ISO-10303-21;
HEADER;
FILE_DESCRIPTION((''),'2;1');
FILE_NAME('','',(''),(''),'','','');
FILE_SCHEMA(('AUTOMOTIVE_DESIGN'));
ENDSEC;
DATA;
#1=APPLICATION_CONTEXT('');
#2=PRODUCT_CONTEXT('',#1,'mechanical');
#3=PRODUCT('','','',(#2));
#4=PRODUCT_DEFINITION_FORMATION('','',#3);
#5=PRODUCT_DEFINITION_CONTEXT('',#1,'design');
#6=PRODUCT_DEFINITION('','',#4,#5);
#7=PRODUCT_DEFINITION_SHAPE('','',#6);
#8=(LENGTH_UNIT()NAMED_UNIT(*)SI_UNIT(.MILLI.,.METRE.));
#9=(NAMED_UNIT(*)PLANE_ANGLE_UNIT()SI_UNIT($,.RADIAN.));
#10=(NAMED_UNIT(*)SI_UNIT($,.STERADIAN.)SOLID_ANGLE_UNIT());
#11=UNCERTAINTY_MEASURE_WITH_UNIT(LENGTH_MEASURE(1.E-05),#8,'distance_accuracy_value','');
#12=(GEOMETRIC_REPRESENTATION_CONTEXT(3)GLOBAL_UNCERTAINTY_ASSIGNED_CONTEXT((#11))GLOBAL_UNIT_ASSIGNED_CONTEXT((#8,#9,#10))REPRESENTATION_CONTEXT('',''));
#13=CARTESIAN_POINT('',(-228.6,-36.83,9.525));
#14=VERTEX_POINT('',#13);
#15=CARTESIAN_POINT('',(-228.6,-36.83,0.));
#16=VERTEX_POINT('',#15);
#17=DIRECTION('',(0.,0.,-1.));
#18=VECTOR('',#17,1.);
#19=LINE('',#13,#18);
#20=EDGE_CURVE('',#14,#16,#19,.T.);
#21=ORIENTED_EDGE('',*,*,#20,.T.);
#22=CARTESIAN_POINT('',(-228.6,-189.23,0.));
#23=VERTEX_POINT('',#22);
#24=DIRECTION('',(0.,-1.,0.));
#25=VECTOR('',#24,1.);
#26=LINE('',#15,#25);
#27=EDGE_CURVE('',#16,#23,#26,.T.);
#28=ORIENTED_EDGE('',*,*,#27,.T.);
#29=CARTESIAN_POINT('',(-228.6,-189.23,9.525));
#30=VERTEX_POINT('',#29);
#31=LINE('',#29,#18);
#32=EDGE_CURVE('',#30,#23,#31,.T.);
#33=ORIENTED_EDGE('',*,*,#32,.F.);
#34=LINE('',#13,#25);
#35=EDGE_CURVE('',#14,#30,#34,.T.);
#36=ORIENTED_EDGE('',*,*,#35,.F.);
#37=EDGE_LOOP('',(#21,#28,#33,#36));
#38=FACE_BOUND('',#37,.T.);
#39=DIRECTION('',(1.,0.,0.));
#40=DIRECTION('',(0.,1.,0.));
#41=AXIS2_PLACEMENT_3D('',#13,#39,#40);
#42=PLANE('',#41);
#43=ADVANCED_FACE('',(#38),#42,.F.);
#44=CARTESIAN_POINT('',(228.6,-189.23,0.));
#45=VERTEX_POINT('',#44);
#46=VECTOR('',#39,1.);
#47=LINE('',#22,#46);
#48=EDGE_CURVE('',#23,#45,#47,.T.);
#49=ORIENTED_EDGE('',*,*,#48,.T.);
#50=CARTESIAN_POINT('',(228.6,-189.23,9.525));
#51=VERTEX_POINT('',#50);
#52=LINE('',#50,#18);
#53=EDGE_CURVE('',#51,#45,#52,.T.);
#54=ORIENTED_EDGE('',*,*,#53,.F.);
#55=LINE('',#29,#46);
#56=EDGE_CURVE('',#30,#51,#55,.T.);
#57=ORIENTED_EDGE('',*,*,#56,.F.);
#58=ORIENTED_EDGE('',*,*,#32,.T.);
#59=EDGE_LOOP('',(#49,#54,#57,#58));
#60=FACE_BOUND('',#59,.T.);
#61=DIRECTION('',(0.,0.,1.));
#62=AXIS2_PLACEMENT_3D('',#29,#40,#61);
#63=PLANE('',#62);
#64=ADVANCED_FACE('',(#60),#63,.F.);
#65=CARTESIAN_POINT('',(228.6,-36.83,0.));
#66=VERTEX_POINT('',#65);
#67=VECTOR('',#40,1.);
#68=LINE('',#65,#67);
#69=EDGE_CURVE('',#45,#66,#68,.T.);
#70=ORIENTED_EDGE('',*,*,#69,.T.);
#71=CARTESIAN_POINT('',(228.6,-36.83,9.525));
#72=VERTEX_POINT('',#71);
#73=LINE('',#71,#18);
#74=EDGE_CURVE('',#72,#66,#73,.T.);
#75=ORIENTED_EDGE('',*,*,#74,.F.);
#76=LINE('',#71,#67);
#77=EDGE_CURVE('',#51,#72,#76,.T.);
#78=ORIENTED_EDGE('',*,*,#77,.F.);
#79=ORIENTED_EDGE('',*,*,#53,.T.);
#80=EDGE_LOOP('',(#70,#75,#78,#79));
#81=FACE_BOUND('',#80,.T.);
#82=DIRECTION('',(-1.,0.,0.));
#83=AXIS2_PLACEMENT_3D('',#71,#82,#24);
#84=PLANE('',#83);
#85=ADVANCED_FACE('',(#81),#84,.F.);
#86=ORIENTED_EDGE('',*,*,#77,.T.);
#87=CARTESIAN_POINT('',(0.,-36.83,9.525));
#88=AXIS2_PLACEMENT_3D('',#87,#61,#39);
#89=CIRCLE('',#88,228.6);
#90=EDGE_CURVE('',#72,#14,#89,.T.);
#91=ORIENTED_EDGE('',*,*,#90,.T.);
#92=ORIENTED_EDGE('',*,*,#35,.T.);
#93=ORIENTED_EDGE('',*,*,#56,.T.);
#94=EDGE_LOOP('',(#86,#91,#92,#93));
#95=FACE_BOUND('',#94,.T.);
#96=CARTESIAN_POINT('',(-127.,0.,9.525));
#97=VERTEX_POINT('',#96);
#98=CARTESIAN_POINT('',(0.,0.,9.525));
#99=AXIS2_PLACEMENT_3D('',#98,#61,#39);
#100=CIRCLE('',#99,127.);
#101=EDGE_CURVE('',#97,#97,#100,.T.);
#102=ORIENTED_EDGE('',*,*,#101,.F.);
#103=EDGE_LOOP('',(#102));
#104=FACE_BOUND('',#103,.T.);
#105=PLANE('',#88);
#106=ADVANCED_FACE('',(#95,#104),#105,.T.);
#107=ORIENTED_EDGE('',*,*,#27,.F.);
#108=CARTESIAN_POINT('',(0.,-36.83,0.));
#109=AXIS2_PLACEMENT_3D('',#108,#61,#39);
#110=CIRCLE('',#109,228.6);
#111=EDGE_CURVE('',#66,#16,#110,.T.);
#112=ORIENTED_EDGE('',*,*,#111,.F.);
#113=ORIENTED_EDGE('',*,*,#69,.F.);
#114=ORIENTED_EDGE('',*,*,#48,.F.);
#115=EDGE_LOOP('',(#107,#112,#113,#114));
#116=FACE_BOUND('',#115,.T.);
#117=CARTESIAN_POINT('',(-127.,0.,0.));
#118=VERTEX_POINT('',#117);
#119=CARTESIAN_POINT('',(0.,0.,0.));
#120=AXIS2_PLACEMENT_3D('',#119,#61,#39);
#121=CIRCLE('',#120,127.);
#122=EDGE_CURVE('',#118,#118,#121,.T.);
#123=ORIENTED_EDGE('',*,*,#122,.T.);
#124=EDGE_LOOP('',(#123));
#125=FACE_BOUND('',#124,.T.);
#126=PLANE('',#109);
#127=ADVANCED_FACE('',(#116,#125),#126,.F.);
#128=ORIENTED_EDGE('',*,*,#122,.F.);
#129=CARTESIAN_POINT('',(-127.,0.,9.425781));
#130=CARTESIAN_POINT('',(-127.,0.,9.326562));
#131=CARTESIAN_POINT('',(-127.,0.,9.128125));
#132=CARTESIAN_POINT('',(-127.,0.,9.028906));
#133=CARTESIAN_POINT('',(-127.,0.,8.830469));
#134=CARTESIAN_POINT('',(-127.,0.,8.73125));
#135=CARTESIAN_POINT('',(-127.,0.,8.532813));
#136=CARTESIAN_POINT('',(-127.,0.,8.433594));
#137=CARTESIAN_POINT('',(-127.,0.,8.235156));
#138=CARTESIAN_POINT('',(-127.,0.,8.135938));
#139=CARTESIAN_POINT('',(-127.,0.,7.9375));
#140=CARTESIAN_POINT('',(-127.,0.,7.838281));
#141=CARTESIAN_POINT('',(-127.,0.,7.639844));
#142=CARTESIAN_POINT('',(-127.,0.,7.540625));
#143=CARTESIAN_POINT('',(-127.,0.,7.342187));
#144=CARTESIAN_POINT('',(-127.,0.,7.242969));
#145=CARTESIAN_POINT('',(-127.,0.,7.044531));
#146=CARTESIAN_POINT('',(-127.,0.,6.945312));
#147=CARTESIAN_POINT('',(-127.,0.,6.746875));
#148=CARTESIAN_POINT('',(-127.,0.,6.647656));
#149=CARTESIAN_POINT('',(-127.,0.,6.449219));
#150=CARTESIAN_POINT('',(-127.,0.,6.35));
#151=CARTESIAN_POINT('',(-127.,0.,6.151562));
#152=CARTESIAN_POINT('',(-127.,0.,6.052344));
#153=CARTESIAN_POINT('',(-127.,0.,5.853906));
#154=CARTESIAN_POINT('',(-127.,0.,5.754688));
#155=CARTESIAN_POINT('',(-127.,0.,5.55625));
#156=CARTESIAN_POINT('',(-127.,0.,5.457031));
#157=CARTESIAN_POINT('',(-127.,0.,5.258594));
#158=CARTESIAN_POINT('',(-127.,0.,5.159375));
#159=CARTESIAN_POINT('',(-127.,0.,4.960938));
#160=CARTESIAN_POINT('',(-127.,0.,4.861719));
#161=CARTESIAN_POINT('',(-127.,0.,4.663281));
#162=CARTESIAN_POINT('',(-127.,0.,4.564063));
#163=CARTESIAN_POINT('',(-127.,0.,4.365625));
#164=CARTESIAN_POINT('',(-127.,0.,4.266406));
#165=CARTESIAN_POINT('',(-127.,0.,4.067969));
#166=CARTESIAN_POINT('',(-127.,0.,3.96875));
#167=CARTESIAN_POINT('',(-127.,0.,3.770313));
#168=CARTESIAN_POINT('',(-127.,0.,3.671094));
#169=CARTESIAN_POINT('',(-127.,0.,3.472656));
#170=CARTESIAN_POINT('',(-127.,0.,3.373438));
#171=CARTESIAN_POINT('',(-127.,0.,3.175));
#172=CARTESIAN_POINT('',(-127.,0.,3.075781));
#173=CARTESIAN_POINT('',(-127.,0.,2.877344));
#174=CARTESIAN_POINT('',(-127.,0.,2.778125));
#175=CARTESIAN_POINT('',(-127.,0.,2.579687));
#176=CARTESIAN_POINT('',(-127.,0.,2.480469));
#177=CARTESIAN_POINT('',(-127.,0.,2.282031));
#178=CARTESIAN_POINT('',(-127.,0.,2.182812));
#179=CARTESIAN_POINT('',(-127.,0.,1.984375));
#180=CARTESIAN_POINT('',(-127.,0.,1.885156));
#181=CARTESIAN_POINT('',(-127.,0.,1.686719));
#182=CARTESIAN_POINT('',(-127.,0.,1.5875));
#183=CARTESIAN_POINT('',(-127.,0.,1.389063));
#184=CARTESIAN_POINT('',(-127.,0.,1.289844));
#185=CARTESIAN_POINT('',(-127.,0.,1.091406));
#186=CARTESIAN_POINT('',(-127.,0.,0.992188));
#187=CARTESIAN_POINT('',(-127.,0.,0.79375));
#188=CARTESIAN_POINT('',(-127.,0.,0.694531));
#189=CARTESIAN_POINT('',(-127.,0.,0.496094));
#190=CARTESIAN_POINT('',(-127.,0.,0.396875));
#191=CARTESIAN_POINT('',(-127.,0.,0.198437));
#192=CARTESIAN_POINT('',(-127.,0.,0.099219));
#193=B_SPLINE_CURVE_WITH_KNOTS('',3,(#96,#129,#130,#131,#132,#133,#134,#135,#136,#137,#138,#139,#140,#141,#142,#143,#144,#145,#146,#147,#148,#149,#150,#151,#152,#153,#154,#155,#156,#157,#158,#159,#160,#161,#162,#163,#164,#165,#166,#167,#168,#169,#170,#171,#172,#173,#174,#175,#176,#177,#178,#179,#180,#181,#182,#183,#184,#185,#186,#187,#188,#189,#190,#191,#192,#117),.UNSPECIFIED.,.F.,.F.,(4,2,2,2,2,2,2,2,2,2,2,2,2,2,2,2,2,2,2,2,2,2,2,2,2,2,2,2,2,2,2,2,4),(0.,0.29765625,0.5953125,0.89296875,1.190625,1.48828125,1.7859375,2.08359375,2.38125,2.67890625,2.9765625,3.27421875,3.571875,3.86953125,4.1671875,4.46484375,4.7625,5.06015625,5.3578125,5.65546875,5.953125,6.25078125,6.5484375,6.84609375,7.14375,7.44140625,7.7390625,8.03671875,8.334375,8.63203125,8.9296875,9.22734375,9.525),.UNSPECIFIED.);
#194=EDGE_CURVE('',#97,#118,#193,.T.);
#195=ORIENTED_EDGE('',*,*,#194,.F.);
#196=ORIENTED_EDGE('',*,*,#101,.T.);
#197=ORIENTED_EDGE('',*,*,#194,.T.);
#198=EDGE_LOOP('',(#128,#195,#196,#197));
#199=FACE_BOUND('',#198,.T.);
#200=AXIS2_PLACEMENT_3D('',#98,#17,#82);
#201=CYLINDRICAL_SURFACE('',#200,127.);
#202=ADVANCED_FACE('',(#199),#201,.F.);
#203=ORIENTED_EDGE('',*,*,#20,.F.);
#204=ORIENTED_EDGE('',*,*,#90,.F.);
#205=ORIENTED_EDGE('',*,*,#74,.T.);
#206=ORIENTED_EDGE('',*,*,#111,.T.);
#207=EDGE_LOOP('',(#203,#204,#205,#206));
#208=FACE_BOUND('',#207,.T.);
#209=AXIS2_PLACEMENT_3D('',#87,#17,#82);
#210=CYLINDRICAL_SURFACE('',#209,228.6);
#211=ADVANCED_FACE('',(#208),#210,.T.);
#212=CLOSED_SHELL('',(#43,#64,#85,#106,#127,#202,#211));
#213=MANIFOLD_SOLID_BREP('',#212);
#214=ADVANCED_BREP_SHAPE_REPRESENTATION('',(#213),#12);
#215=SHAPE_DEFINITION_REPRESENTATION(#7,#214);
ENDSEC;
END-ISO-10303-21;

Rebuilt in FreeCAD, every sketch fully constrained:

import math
import FreeCAD as App
import Part
import Sketcher

V = App.Vector
Q = App.Units.Quantity

doc = App.newDocument("Part")
params = doc.addObject("Spreadsheet::Sheet", "Params")
for row, (alias, value) in enumerate([
    ("sketch1_diameter", "10 in"),
    ("sketch1_radius", "9 in"),
    ("sketch1_height", "6 in"),
    ("pad1_length", "0.375 in"),
], start=1):
    params.set(f"A{row}", alias)
    params.set(f"B{row}", "=" + value)
    params.setAlias(f"B{row}", alias)

body = doc.addObject("PartDesign::Body", "Body")

# Sketch on XY plane
sketch1 = body.newObject("Sketcher::SketchObject", "Sketch")
sketch1.AttachmentSupport = (doc.getObject("XY_Plane"), [""])
sketch1.MapMode = "FlatFace"
sketch1.addGeometry([
    Part.LineSegment(V(-229, -37, 0), V(-229, -189, 0)),  # 0
    Part.LineSegment(V(-229, -189, 0), V(229, -189, 0)),  # 1
    Part.LineSegment(V(229, -189, 0), V(229, -37, 0)),  # 2
    Part.ArcOfCircle(Part.Circle(V(0, -37, 0), V(0, 0, 1), 229), math.radians(0), math.radians(180)),  # 3
    Part.Circle(V(0, 0, 0), V(0, 0, 1), 127),  # 4
], False)
sketch1.addConstraint([
    Sketcher.Constraint("Coincident", 0, 2, 1, 1),
    Sketcher.Constraint("Coincident", 1, 2, 2, 1),
    Sketcher.Constraint("Tangent", 2, 2, 3, 1),
    Sketcher.Constraint("Tangent", 3, 2, 0, 1),
    Sketcher.Constraint("Vertical", 0),
    Sketcher.Constraint("Horizontal", 1),
    Sketcher.Constraint("Vertical", 2),
    Sketcher.Constraint("Coincident", 4, 3, -1, 1),
    Sketcher.Constraint("PointOnObject", 3, 3, -2),
    Sketcher.Constraint("Diameter", 4, Q("10 in")),
    Sketcher.Constraint("Radius", 3, Q("9 in")),
    Sketcher.Constraint("DistanceY", 0, 2, 0, 1, Q("6 in")),
    Sketcher.Constraint("DistanceY", 3, 3, -1, 1, Q("1.45 in")),
])
sketch1.setExpression("Constraints[9]", "Params.sketch1_diameter")
sketch1.setExpression("Constraints[10]", "Params.sketch1_radius")
sketch1.setExpression("Constraints[11]", "Params.sketch1_height")
pad1 = body.newObject("PartDesign::Pad", "Pad")
pad1.Profile = sketch1
pad1.setExpression("Length", "Params.pad1_length")

doc.recompute()
